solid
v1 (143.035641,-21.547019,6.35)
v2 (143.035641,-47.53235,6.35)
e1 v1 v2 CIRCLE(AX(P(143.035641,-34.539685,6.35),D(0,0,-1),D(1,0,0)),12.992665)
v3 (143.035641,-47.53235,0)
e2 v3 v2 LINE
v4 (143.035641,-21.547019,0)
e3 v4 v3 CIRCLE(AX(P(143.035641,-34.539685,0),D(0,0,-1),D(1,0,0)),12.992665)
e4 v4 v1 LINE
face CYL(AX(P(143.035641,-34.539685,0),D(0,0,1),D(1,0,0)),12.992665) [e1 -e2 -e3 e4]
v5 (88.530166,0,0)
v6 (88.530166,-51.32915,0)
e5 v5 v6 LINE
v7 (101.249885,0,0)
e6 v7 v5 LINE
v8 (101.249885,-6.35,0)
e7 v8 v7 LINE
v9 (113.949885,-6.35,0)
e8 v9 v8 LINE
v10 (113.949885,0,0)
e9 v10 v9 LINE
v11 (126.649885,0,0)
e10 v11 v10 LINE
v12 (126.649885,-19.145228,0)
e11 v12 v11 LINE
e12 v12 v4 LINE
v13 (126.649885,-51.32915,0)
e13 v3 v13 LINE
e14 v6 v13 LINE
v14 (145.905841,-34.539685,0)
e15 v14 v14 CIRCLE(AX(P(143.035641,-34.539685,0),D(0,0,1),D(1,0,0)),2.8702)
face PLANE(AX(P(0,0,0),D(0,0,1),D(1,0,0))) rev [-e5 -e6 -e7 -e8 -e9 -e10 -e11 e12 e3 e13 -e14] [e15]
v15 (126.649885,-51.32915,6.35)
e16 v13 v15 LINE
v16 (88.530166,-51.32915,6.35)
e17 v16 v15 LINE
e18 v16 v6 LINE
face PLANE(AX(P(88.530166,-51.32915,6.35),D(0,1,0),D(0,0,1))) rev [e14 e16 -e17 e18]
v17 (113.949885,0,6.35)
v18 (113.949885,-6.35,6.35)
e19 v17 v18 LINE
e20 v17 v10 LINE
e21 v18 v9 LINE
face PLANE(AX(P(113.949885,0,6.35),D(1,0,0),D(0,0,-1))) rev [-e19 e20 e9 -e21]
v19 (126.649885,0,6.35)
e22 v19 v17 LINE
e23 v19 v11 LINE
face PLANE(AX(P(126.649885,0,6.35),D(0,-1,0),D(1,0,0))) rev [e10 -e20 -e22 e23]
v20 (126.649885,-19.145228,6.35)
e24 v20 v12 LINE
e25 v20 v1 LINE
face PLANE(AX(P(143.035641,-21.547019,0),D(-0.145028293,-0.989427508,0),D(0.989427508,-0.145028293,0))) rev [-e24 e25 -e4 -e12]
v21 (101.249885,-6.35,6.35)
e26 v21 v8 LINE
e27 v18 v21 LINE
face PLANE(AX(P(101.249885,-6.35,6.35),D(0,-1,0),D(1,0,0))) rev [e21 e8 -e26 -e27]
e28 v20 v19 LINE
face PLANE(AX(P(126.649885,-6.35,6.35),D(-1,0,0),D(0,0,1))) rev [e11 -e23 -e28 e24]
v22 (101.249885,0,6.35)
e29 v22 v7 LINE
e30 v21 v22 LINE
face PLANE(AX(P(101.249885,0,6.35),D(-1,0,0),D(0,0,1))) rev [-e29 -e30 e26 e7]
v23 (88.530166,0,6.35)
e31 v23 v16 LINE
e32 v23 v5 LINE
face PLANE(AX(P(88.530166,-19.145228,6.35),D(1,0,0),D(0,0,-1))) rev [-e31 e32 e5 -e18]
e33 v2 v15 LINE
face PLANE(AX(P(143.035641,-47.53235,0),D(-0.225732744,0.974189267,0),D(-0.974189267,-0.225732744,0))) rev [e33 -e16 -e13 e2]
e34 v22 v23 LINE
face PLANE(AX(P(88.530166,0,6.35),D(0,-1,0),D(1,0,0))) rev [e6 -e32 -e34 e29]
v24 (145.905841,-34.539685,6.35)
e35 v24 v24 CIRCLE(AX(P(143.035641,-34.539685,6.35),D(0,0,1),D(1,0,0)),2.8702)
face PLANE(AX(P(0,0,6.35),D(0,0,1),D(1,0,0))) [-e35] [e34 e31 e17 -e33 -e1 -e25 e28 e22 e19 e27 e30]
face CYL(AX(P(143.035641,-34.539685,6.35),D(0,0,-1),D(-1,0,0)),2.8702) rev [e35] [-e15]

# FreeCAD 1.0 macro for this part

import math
import FreeCAD as App
import Part
import Sketcher
from FreeCAD import Vector
Q = App.Units.Quantity


def add_polygon(sketch, points):
    """Adds a closed chain of lines whose ends are joined by coincident constraints."""
    first, n = sketch.GeometryCount, len(points)
    for a, b in zip(points, points[1:] + points[:1]):
        sketch.addGeometry(Part.LineSegment(App.Vector(*a, 0), App.Vector(*b, 0)), False)
    for i in range(n):
        sketch.addConstraint(Sketcher.Constraint("Coincident", first + i, 2, first + (i + 1) % n, 1))

doc = App.newDocument("Part")
body = doc.addObject("PartDesign::Body", "Body")

# Sketch on XY plane
sketch1 = body.newObject("Sketcher::SketchObject", "Sketch")
sketch1.AttachmentSupport = (doc.getObject("XY_Plane"), [""])
sketch1.MapMode = "FlatFace"
add_polygon(sketch1, [(126.6, 0), (113.9, 0), (113.9, -6.3), (101.2, -6.3), (101.2, 0), (88.5, 0), (88.5, -51.3), (157.2, -51.3), (157.2, -19.1), (126.6, -19.1)])  # lines 0-9
sketch1.addGeometry(Part.Circle(Vector(143, -34.5, 0), Vector(0, 0, 1), 2.9), False)  # 10
sketch1.addConstraint([
    Sketcher.Constraint("Horizontal", 0),
    Sketcher.Constraint("Vertical", 1),
    Sketcher.Constraint("Horizontal", 2),
    Sketcher.Constraint("Vertical", 3),
    Sketcher.Constraint("Horizontal", 4),
    Sketcher.Constraint("Vertical", 5),
    Sketcher.Constraint("Horizontal", 6),
    Sketcher.Constraint("Vertical", 7),
    Sketcher.Constraint("Horizontal", 8),
    Sketcher.Constraint("Vertical", 9),
    Sketcher.Constraint("PointOnObject", 0, 2, -1),
    Sketcher.Constraint("PointOnObject", 3, 2, -1),
    Sketcher.Constraint("Equal", 0, 2),
    Sketcher.Constraint("Diameter", 10, Q("0.226 in")),
    Sketcher.Constraint("DistanceX", 0, 2, 0, 1, Q("0.5 in")),
    Sketcher.Constraint("DistanceY", 1, 2, 1, 1, Q("0.25 in")),
    Sketcher.Constraint("DistanceX", 4, 2, 4, 1, Q("12.719719 mm")),
    Sketcher.Constraint("DistanceX", 6, 1, 6, 2, Q("68.637769 mm")),
    Sketcher.Constraint("DistanceY", 5, 2, 5, 1, Q("51.32915 mm")),
    Sketcher.Constraint("DistanceY", 7, 1, 7, 2, Q("32.183922 mm")),
    Sketcher.Constraint("DistanceX", -1, 1, 10, 3, Q("143.035641 mm")),
    Sketcher.Constraint("DistanceY", 10, 3, -1, 1, Q("34.539685 mm")),
    Sketcher.Constraint("DistanceX", -1, 1, 0, 2, Q("113.949885 mm")),
])
pad1 = body.newObject("PartDesign::Pad", "Pad")
pad1.Profile = sketch1
pad1.Length = Q("0.25 in")

# Sketch on XY plane
sketch2 = body.newObject("Sketcher::SketchObject", "Sketch001")
sketch2.AttachmentSupport = (doc.getObject("XY_Plane"), [""])
sketch2.MapMode = "FlatFace"
sketch2.AttachmentOffset = App.Placement(Vector(0, 0, 0.25 * 25.4), App.Rotation())
sketch2.addGeometry([
    Part.LineSegment(Vector(127, -19, 0), Vector(143, -22, 0)),  # 0
    Part.ArcOfCircle(Part.Circle(Vector(143, -35, 0), Vector(0, 0, 1), 13), math.radians(-90), math.radians(90)),  # 1
    Part.LineSegment(Vector(143, -48, 0), Vector(127, -51, 0)),  # 2
    Part.LineSegment(Vector(127, -51, 0), Vector(157, -51, 0)),  # 3
    Part.LineSegment(Vector(157, -51, 0), Vector(157, -19, 0)),  # 4
    Part.LineSegment(Vector(157, -19, 0), Vector(127, -19, 0)),  # 5
], False)
sketch2.addConstraint([
    Sketcher.Constraint("Coincident", 0, 2, 1, 2),
    Sketcher.Constraint("Coincident", 1, 1, 2, 1),
    Sketcher.Constraint("Coincident", 2, 2, 3, 1),
    Sketcher.Constraint("Coincident", 3, 2, 4, 1),
    Sketcher.Constraint("Coincident", 4, 2, 5, 1),
    Sketcher.Constraint("Coincident", 5, 2, 0, 1),
    Sketcher.Constraint("Horizontal", 3),
    Sketcher.Constraint("Vertical", 4),
    Sketcher.Constraint("Horizontal", 5),
    Sketcher.Constraint("Vertical", 1, 3, 0, 2),
    Sketcher.Constraint("Vertical", 0, 2, 1, 1),
    Sketcher.Constraint("Vertical", 2, 2, 5, 2),
    Sketcher.Constraint("Radius", 1, Q("12.992665 mm")),
    Sketcher.Constraint("DistanceX", 3, 1, 3, 2, Q("30.518051 mm")),
    Sketcher.Constraint("DistanceY", 4, 1, 4, 2, Q("32.183922 mm")),
    Sketcher.Constraint("DistanceY", 2, 2, 1, 1, Q("3.7968 mm")),
    Sketcher.Constraint("Distance", 2, Q("16.81989 mm")),
    Sketcher.Constraint("DistanceX", -1, 1, 1, 3, Q("143.035641 mm")),
    Sketcher.Constraint("DistanceY", 0, 2, -1, 1, Q("21.547019 mm")),
])
pocket1 = body.newObject("PartDesign::Pocket", "Pocket")
pocket1.Profile = sketch2
pocket1.Type = "ThroughAll"

doc.recompute()
